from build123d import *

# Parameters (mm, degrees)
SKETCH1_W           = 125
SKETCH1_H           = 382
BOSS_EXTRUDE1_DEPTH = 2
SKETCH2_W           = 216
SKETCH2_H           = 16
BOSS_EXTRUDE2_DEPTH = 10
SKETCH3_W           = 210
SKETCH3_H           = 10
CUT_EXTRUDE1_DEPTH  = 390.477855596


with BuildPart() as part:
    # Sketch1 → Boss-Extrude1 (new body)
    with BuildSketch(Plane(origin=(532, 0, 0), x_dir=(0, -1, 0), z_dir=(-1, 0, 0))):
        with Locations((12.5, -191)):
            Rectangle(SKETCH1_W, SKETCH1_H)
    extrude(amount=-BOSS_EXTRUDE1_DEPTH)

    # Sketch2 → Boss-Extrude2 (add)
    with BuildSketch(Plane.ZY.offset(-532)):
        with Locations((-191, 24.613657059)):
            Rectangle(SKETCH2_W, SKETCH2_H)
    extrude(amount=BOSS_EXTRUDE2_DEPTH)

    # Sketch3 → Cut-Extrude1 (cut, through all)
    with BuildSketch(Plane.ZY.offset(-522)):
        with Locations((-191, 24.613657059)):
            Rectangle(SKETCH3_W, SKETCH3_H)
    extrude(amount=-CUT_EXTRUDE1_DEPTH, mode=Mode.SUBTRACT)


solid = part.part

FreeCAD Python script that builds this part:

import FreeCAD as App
import Part
import Sketcher

V = App.Vector

doc = App.newDocument("Part")
body = doc.addObject("PartDesign::Body", "Body")

# Sketch on YZ plane
sketch1 = body.newObject("Sketcher::SketchObject", "Sketch")
sketch1.AttachmentSupport = (doc.getObject("YZ_Plane"), [""])
sketch1.MapMode = "FlatFace"
sketch1.AttachmentOffset = App.Placement(V(0, 0, 532), App.Rotation())
sketch1.addGeometry(Part.LineSegment(V(50, 0, 0), V(50, -382, 0)), False)
sketch1.addGeometry(Part.LineSegment(V(50, -382, 0), V(-75, -382, 0)), False)
sketch1.addGeometry(Part.LineSegment(V(-75, -382, 0), V(-75, 0, 0)), False)
sketch1.addGeometry(Part.LineSegment(V(-75, 0, 0), V(50, 0, 0)), False)
sketch1.addConstraint(Sketcher.Constraint("Coincident", 0, 2, 1, 1))
sketch1.addConstraint(Sketcher.Constraint("Coincident", 1, 2, 2, 1))
sketch1.addConstraint(Sketcher.Constraint("Coincident", 2, 2, 3, 1))
sketch1.addConstraint(Sketcher.Constraint("Coincident", 3, 2, 0, 1))
sketch1.addConstraint(Sketcher.Constraint("Vertical", 0))
sketch1.addConstraint(Sketcher.Constraint("Horizontal", 1))
sketch1.addConstraint(Sketcher.Constraint("Vertical", 2))
sketch1.addConstraint(Sketcher.Constraint("Horizontal", 3))
sketch1.addConstraint(Sketcher.Constraint("PointOnObject", 2, 2, -1))
sketch1.addConstraint(Sketcher.Constraint("DistanceX", 1, 2, 1, 1, 125.0))
sketch1.addConstraint(Sketcher.Constraint("DistanceY", 0, 2, 0, 1, 382.0))
sketch1.addConstraint(Sketcher.Constraint("DistanceX", -1, 1, 0, 2, 50.0))
pad1 = body.newObject("PartDesign::Pad", "Pad")
pad1.Profile = sketch1
pad1.Length = 2

# Sketch on YZ plane
sketch2 = body.newObject("Sketcher::SketchObject", "Sketch001")
sketch2.AttachmentSupport = (doc.getObject("YZ_Plane"), [""])
sketch2.MapMode = "FlatFace"
sketch2.AttachmentOffset = App.Placement(V(0, 0, 532), App.Rotation())
sketch2.addGeometry(Part.LineSegment(V(33, -299, 0), V(17, -299, 0)), False)
sketch2.addGeometry(Part.LineSegment(V(17, -299, 0), V(17, -83, 0)), False)
sketch2.addGeometry(Part.LineSegment(V(17, -83, 0), V(33, -83, 0)), False)
sketch2.addGeometry(Part.LineSegment(V(33, -83, 0), V(33, -299, 0)), False)
sketch2.addConstraint(Sketcher.Constraint("Coincident", 0, 2, 1, 1))
sketch2.addConstraint(Sketcher.Constraint("Coincident", 1, 2, 2, 1))
sketch2.addConstraint(Sketcher.Constraint("Coincident", 2, 2, 3, 1))
sketch2.addConstraint(Sketcher.Constraint("Coincident", 3, 2, 0, 1))
sketch2.addConstraint(Sketcher.Constraint("Horizontal", 0))
sketch2.addConstraint(Sketcher.Constraint("Vertical", 1))
sketch2.addConstraint(Sketcher.Constraint("Horizontal", 2))
sketch2.addConstraint(Sketcher.Constraint("Vertical", 3))
sketch2.addConstraint(Sketcher.Constraint("DistanceX", 0, 2, 0, 1, 16.0))
sketch2.addConstraint(Sketcher.Constraint("DistanceY", 1, 1, 1, 2, 216.0))
sketch2.addConstraint(Sketcher.Constraint("DistanceY", 0, 2, -1, 1, 299.0))
sketch2.addConstraint(Sketcher.Constraint("DistanceX", -1, 1, 0, 2, 16.613657))
pad2 = body.newObject("PartDesign::Pad", "Pad001")
pad2.Profile = sketch2
pad2.Length = 10
pad2.Reversed = True

# Sketch on YZ plane
sketch3 = body.newObject("Sketcher::SketchObject", "Sketch002")
sketch3.AttachmentSupport = (doc.getObject("YZ_Plane"), [""])
sketch3.MapMode = "FlatFace"
sketch3.AttachmentOffset = App.Placement(V(0, 0, 522), App.Rotation())
sketch3.addGeometry(Part.LineSegment(V(30, -296, 0), V(20, -296, 0)), False)
sketch3.addGeometry(Part.LineSegment(V(20, -296, 0), V(20, -86, 0)), False)
sketch3.addGeometry(Part.LineSegment(V(20, -86, 0), V(30, -86, 0)), False)
sketch3.addGeometry(Part.LineSegment(V(30, -86, 0), V(30, -296, 0)), False)
sketch3.addConstraint(Sketcher.Constraint("Coincident", 0, 2, 1, 1))
sketch3.addConstraint(Sketcher.Constraint("Coincident", 1, 2, 2, 1))
sketch3.addConstraint(Sketcher.Constraint("Coincident", 2, 2, 3, 1))
sketch3.addConstraint(Sketcher.Constraint("Coincident", 3, 2, 0, 1))
sketch3.addConstraint(Sketcher.Constraint("Horizontal", 0))
sketch3.addConstraint(Sketcher.Constraint("Vertical", 1))
sketch3.addConstraint(Sketcher.Constraint("Horizontal", 2))
sketch3.addConstraint(Sketcher.Constraint("Vertical", 3))
sketch3.addConstraint(Sketcher.Constraint("DistanceX", 0, 2, 0, 1, 10.0))
sketch3.addConstraint(Sketcher.Constraint("DistanceY", 1, 1, 1, 2, 210.0))
sketch3.addConstraint(Sketcher.Constraint("DistanceY", 0, 2, -1, 1, 296.0))
sketch3.addConstraint(Sketcher.Constraint("DistanceX", -1, 1, 0, 2, 19.613657))
pocket1 = body.newObject("PartDesign::Pocket", "Pocket")
pocket1.Profile = sketch3
pocket1.Type = "ThroughAll"
pocket1.Reversed = True

doc.recompute()
